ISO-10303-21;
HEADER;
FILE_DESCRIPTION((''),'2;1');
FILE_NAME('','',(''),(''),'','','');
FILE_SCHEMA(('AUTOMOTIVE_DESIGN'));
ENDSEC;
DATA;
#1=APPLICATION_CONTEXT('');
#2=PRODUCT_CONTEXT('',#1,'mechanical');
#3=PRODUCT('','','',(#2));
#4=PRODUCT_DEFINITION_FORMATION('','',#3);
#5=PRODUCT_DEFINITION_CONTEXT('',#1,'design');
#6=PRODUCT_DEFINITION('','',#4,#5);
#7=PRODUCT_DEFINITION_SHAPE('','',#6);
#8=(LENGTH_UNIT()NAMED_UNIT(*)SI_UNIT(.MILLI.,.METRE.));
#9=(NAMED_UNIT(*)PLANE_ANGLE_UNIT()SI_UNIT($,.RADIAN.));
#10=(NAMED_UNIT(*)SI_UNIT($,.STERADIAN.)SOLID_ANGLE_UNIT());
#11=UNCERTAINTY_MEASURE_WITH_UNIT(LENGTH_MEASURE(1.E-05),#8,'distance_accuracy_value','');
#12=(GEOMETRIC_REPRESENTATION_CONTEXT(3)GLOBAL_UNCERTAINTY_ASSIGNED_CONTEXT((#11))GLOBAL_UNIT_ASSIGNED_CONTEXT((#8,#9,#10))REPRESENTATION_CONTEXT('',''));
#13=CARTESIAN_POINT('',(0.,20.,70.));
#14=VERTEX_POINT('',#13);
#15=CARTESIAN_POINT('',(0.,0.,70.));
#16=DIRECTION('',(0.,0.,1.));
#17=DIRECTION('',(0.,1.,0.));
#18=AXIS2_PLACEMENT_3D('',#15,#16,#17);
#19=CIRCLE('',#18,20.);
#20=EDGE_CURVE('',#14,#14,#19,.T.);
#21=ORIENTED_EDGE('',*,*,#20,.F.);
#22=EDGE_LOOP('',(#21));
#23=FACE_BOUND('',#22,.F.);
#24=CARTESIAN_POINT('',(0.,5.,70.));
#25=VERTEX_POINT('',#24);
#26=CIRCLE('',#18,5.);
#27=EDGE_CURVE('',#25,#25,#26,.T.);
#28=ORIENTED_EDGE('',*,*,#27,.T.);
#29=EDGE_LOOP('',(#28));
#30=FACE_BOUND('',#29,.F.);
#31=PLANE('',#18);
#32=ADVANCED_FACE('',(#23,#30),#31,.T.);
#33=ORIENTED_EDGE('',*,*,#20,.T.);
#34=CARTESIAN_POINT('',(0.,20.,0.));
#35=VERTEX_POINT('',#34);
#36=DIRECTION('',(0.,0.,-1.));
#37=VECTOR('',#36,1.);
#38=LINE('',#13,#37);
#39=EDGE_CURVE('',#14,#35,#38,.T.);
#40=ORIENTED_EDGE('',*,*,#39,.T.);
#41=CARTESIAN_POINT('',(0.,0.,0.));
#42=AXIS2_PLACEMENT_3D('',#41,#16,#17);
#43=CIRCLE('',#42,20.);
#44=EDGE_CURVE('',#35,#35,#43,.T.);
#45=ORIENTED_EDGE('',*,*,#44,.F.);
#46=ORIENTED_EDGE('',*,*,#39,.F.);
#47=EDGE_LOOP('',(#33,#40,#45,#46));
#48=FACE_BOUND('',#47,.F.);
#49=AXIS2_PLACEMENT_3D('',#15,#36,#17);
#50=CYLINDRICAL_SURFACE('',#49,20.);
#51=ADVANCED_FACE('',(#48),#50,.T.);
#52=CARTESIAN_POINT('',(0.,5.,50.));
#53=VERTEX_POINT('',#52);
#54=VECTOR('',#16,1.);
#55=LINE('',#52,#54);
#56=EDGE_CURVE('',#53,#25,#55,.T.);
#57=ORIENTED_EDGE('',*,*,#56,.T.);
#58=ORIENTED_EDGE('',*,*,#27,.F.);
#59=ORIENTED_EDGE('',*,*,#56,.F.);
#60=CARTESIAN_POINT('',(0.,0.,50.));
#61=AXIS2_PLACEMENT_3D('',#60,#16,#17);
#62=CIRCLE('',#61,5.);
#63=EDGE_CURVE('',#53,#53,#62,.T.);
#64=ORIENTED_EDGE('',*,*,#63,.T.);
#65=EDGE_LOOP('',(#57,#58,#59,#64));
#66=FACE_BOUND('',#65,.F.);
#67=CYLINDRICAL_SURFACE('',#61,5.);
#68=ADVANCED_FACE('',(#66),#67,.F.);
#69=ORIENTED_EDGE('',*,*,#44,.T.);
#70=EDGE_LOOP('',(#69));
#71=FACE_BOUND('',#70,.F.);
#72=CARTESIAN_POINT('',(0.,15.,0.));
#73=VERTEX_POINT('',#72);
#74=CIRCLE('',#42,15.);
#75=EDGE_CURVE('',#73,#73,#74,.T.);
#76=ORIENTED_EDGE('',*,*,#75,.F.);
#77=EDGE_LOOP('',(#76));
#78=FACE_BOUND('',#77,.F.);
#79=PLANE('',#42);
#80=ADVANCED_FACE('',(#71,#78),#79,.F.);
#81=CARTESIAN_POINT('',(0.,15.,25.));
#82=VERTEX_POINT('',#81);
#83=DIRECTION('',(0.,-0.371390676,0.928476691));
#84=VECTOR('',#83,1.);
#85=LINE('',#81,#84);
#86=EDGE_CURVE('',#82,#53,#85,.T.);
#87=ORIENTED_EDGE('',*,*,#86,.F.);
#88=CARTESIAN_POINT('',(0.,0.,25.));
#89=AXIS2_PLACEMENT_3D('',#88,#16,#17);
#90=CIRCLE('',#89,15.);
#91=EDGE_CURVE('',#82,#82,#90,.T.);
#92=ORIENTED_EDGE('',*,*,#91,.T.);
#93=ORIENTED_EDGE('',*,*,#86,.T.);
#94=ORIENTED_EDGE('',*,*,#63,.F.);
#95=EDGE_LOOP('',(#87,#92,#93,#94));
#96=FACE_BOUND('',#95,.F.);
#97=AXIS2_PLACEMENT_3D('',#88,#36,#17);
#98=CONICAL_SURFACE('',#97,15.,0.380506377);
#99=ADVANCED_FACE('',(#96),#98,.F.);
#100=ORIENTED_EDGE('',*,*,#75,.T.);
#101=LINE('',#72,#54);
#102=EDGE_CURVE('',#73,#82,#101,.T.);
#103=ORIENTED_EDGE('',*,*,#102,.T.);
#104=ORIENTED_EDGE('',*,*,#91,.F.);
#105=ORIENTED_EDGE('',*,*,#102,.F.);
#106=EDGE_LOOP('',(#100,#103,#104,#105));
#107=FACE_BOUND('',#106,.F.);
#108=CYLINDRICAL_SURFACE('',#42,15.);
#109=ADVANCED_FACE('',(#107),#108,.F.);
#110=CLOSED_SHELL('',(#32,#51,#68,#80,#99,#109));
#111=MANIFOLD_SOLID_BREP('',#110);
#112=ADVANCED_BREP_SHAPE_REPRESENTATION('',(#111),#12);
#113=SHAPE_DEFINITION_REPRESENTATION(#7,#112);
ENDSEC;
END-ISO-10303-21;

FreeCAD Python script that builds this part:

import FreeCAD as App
import Part
import Sketcher

V = App.Vector
Q = App.Units.Quantity


def add_polygon(sketch, points):
    """Adds a closed chain of lines whose ends are joined by coincident constraints."""
    first, n = sketch.GeometryCount, len(points)
    for a, b in zip(points, points[1:] + points[:1]):
        sketch.addGeometry(Part.LineSegment(App.Vector(*a, 0), App.Vector(*b, 0)), False)
    for i in range(n):
        sketch.addConstraint(Sketcher.Constraint("Coincident", first + i, 2, first + (i + 1) % n, 1))

doc = App.newDocument("Part")
body = doc.addObject("PartDesign::Body", "Body")

# Sketch on YZ plane
sketch1 = body.newObject("Sketcher::SketchObject", "Sketch")
sketch1.AttachmentSupport = (doc.getObject("YZ_Plane"), [""])
sketch1.MapMode = "FlatFace"
add_polygon(sketch1, [(20, 70), (5, 70), (5, 50), (15, 25), (15, 0), (20, 0)])  # lines 0-5
sketch1.addConstraint(Sketcher.Constraint("Horizontal", 0))
sketch1.addConstraint(Sketcher.Constraint("Vertical", 1))
sketch1.addConstraint(Sketcher.Constraint("Vertical", 3))
sketch1.addConstraint(Sketcher.Constraint("Horizontal", 4))
sketch1.addConstraint(Sketcher.Constraint("Vertical", 5))
sketch1.addConstraint(Sketcher.Constraint("PointOnObject", 3, 2, -1))
sketch1.addConstraint(Sketcher.Constraint("DistanceX", 0, 2, 0, 1, Q("15 mm")))
sketch1.addConstraint(Sketcher.Constraint("DistanceX", 4, 1, 4, 2, Q("5 mm")))
sketch1.addConstraint(Sketcher.Constraint("DistanceY", 1, 2, 1, 1, Q("20 mm")))
sketch1.addConstraint(Sketcher.Constraint("DistanceY", 3, 2, 3, 1, Q("25 mm")))
sketch1.addConstraint(Sketcher.Constraint("DistanceY", 5, 1, 5, 2, Q("70 mm")))
sketch1.addConstraint(Sketcher.Constraint("DistanceX", -1, 1, 0, 2, Q("5 mm")))
revolution = body.newObject("PartDesign::Revolution", "Revolution")
revolution.Profile = sketch1
revolution.ReferenceAxis = (sketch1, ["V_Axis"])
revolution.Angle = 360

doc.recompute()
